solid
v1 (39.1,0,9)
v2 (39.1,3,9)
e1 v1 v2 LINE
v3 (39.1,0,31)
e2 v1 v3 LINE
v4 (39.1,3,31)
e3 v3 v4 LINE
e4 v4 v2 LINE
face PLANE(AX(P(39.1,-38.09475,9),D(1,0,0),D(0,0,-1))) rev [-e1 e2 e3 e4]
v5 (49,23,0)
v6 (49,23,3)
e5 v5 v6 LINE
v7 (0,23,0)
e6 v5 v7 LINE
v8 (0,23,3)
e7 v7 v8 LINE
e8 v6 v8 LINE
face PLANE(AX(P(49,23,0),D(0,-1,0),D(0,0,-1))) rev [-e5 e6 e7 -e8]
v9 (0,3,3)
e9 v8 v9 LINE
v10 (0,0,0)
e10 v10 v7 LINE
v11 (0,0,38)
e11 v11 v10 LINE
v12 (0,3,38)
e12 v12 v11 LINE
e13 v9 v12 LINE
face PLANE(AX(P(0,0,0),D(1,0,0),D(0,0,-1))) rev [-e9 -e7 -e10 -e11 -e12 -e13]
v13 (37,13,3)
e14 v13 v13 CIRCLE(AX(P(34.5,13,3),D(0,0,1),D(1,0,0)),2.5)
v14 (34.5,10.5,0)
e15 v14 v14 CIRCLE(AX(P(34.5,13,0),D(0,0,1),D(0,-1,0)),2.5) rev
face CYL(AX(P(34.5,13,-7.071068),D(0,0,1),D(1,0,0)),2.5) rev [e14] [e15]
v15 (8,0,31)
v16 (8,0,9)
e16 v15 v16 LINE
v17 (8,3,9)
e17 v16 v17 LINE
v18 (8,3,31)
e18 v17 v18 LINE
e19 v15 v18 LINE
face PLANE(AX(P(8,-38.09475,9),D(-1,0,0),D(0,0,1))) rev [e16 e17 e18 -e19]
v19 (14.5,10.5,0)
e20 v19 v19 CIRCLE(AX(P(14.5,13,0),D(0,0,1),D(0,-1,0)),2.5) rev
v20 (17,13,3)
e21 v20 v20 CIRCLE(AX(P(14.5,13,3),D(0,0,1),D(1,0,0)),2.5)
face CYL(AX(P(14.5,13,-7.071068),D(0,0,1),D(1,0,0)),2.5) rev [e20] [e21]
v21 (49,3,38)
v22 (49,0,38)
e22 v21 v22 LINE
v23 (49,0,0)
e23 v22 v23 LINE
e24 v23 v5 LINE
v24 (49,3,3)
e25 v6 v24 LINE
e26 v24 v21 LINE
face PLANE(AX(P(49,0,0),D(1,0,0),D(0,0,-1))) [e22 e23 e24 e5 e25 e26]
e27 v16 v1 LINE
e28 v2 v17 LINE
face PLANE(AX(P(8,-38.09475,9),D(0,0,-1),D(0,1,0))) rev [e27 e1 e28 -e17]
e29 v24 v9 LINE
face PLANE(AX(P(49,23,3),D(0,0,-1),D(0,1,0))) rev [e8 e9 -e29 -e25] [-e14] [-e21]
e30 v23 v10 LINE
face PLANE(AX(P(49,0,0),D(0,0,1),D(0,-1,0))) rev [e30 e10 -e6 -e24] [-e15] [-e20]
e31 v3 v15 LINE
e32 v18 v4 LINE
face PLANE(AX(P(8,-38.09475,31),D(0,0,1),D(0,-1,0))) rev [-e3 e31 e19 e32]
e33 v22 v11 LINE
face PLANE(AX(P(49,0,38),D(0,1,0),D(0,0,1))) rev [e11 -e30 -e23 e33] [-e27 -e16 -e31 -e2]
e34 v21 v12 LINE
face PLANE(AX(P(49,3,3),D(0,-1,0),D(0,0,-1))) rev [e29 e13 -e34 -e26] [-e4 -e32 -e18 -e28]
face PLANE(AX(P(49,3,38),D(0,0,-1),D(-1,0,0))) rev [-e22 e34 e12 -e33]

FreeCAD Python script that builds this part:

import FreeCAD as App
import Part
import Sketcher

V = App.Vector


def add_polygon(sketch, points):
    """Adds a closed chain of lines whose ends are joined by coincident constraints."""
    first, n = sketch.GeometryCount, len(points)
    for a, b in zip(points, points[1:] + points[:1]):
        sketch.addGeometry(Part.LineSegment(App.Vector(*a, 0), App.Vector(*b, 0)), False)
    for i in range(n):
        sketch.addConstraint(Sketcher.Constraint("Coincident", first + i, 2, first + (i + 1) % n, 1))

doc = App.newDocument("Part")
body = doc.addObject("PartDesign::Body", "Body")

# Sketch on YZ plane
sketch1 = doc.addObject("Sketcher::SketchObject", "Sketch")
body.addObject(sketch1)
sketch1.AttachmentSupport = (doc.YZ_Plane, [""])
sketch1.MapMode = "FlatFace"
add_polygon(sketch1, [(0, 38), (0, 0), (23, 0), (23, 3), (3, 3), (3, 38)])  # lines 0-5
sketch1.addConstraint(Sketcher.Constraint("Vertical", 0))
sketch1.addConstraint(Sketcher.Constraint("Horizontal", 1))
sketch1.addConstraint(Sketcher.Constraint("Vertical", 2))
sketch1.addConstraint(Sketcher.Constraint("Horizontal", 3))
sketch1.addConstraint(Sketcher.Constraint("Vertical", 4))
sketch1.addConstraint(Sketcher.Constraint("Horizontal", 5))
sketch1.addConstraint(Sketcher.Constraint("Coincident", 0, 2, -1, 1))
sketch1.addConstraint(Sketcher.Constraint("Equal", 5, 2))
sketch1.addConstraint(Sketcher.Constraint("DistanceX", 1, 1, 1, 2, 23.0))
sketch1.addConstraint(Sketcher.Constraint("DistanceX", 3, 2, 3, 1, 20.0))
sketch1.addConstraint(Sketcher.Constraint("DistanceY", 0, 2, 0, 1, 38.0))
pad1 = doc.addObject("PartDesign::Pad", "Pad")
body.addObject(pad1)
pad1.Profile = sketch1
pad1.Length = 49

# Sketch on XZ plane
sketch2 = doc.addObject("Sketcher::SketchObject", "Sketch001")
body.addObject(sketch2)
sketch2.AttachmentSupport = (doc.XZ_Plane, [""])
sketch2.MapMode = "FlatFace"
sketch2.AttachmentOffset = App.Placement(V(0, 0, -3), App.Rotation())
add_polygon(sketch2, [(8, 9), (8, 31), (39, 31), (39, 9)])  # lines 0-3
sketch2.addConstraint(Sketcher.Constraint("Vertical", 0))
sketch2.addConstraint(Sketcher.Constraint("Horizontal", 1))
sketch2.addConstraint(Sketcher.Constraint("Vertical", 2))
sketch2.addConstraint(Sketcher.Constraint("Horizontal", 3))
sketch2.addConstraint(Sketcher.Constraint("DistanceY", 0, 1, 0, 2, 22.0))
sketch2.addConstraint(Sketcher.Constraint("DistanceX", 1, 1, 1, 2, 31.1))
sketch2.addConstraint(Sketcher.Constraint("DistanceX", -1, 1, 0, 2, 8.0))
sketch2.addConstraint(Sketcher.Constraint("DistanceY", -1, 1, 0, 2, 31.0))
pocket1 = doc.addObject("PartDesign::Pocket", "Pocket")
body.addObject(pocket1)
pocket1.Profile = sketch2
pocket1.Length = 3
pocket1.Reversed = True

# Sketch on XY plane
sketch3 = doc.addObject("Sketcher::SketchObject", "Sketch002")
body.addObject(sketch3)
sketch3.AttachmentSupport = (doc.XY_Plane, [""])
sketch3.MapMode = "FlatFace"
sketch3.AttachmentOffset = App.Placement(V(0, 0, 3), App.Rotation())
sketch3.addGeometry(Part.Circle(V(14.5, 13, 0), V(0, 0, 1), 2.5), False)
sketch3.addGeometry(Part.Circle(V(34.5, 13, 0), V(0, 0, 1), 2.5), False)
sketch3.addConstraint(Sketcher.Constraint("Equal", 0, 1))
sketch3.addConstraint(Sketcher.Constraint("Horizontal", 0, 3, 1, 3))
sketch3.addConstraint(Sketcher.Constraint("Diameter", 0, 5.0))
sketch3.addConstraint(Sketcher.Constraint("DistanceY", -1, 1, 0, 3, 13.0))
sketch3.addConstraint(Sketcher.Constraint("DistanceX", 0, 3, 1, 3, 20.0))
sketch3.addConstraint(Sketcher.Constraint("DistanceX", -1, 1, 0, 3, 14.5))
pocket2 = doc.addObject("PartDesign::Pocket", "Pocket001")
body.addObject(pocket2)
pocket2.Profile = sketch3
pocket2.Length = 3

doc.recompute()
